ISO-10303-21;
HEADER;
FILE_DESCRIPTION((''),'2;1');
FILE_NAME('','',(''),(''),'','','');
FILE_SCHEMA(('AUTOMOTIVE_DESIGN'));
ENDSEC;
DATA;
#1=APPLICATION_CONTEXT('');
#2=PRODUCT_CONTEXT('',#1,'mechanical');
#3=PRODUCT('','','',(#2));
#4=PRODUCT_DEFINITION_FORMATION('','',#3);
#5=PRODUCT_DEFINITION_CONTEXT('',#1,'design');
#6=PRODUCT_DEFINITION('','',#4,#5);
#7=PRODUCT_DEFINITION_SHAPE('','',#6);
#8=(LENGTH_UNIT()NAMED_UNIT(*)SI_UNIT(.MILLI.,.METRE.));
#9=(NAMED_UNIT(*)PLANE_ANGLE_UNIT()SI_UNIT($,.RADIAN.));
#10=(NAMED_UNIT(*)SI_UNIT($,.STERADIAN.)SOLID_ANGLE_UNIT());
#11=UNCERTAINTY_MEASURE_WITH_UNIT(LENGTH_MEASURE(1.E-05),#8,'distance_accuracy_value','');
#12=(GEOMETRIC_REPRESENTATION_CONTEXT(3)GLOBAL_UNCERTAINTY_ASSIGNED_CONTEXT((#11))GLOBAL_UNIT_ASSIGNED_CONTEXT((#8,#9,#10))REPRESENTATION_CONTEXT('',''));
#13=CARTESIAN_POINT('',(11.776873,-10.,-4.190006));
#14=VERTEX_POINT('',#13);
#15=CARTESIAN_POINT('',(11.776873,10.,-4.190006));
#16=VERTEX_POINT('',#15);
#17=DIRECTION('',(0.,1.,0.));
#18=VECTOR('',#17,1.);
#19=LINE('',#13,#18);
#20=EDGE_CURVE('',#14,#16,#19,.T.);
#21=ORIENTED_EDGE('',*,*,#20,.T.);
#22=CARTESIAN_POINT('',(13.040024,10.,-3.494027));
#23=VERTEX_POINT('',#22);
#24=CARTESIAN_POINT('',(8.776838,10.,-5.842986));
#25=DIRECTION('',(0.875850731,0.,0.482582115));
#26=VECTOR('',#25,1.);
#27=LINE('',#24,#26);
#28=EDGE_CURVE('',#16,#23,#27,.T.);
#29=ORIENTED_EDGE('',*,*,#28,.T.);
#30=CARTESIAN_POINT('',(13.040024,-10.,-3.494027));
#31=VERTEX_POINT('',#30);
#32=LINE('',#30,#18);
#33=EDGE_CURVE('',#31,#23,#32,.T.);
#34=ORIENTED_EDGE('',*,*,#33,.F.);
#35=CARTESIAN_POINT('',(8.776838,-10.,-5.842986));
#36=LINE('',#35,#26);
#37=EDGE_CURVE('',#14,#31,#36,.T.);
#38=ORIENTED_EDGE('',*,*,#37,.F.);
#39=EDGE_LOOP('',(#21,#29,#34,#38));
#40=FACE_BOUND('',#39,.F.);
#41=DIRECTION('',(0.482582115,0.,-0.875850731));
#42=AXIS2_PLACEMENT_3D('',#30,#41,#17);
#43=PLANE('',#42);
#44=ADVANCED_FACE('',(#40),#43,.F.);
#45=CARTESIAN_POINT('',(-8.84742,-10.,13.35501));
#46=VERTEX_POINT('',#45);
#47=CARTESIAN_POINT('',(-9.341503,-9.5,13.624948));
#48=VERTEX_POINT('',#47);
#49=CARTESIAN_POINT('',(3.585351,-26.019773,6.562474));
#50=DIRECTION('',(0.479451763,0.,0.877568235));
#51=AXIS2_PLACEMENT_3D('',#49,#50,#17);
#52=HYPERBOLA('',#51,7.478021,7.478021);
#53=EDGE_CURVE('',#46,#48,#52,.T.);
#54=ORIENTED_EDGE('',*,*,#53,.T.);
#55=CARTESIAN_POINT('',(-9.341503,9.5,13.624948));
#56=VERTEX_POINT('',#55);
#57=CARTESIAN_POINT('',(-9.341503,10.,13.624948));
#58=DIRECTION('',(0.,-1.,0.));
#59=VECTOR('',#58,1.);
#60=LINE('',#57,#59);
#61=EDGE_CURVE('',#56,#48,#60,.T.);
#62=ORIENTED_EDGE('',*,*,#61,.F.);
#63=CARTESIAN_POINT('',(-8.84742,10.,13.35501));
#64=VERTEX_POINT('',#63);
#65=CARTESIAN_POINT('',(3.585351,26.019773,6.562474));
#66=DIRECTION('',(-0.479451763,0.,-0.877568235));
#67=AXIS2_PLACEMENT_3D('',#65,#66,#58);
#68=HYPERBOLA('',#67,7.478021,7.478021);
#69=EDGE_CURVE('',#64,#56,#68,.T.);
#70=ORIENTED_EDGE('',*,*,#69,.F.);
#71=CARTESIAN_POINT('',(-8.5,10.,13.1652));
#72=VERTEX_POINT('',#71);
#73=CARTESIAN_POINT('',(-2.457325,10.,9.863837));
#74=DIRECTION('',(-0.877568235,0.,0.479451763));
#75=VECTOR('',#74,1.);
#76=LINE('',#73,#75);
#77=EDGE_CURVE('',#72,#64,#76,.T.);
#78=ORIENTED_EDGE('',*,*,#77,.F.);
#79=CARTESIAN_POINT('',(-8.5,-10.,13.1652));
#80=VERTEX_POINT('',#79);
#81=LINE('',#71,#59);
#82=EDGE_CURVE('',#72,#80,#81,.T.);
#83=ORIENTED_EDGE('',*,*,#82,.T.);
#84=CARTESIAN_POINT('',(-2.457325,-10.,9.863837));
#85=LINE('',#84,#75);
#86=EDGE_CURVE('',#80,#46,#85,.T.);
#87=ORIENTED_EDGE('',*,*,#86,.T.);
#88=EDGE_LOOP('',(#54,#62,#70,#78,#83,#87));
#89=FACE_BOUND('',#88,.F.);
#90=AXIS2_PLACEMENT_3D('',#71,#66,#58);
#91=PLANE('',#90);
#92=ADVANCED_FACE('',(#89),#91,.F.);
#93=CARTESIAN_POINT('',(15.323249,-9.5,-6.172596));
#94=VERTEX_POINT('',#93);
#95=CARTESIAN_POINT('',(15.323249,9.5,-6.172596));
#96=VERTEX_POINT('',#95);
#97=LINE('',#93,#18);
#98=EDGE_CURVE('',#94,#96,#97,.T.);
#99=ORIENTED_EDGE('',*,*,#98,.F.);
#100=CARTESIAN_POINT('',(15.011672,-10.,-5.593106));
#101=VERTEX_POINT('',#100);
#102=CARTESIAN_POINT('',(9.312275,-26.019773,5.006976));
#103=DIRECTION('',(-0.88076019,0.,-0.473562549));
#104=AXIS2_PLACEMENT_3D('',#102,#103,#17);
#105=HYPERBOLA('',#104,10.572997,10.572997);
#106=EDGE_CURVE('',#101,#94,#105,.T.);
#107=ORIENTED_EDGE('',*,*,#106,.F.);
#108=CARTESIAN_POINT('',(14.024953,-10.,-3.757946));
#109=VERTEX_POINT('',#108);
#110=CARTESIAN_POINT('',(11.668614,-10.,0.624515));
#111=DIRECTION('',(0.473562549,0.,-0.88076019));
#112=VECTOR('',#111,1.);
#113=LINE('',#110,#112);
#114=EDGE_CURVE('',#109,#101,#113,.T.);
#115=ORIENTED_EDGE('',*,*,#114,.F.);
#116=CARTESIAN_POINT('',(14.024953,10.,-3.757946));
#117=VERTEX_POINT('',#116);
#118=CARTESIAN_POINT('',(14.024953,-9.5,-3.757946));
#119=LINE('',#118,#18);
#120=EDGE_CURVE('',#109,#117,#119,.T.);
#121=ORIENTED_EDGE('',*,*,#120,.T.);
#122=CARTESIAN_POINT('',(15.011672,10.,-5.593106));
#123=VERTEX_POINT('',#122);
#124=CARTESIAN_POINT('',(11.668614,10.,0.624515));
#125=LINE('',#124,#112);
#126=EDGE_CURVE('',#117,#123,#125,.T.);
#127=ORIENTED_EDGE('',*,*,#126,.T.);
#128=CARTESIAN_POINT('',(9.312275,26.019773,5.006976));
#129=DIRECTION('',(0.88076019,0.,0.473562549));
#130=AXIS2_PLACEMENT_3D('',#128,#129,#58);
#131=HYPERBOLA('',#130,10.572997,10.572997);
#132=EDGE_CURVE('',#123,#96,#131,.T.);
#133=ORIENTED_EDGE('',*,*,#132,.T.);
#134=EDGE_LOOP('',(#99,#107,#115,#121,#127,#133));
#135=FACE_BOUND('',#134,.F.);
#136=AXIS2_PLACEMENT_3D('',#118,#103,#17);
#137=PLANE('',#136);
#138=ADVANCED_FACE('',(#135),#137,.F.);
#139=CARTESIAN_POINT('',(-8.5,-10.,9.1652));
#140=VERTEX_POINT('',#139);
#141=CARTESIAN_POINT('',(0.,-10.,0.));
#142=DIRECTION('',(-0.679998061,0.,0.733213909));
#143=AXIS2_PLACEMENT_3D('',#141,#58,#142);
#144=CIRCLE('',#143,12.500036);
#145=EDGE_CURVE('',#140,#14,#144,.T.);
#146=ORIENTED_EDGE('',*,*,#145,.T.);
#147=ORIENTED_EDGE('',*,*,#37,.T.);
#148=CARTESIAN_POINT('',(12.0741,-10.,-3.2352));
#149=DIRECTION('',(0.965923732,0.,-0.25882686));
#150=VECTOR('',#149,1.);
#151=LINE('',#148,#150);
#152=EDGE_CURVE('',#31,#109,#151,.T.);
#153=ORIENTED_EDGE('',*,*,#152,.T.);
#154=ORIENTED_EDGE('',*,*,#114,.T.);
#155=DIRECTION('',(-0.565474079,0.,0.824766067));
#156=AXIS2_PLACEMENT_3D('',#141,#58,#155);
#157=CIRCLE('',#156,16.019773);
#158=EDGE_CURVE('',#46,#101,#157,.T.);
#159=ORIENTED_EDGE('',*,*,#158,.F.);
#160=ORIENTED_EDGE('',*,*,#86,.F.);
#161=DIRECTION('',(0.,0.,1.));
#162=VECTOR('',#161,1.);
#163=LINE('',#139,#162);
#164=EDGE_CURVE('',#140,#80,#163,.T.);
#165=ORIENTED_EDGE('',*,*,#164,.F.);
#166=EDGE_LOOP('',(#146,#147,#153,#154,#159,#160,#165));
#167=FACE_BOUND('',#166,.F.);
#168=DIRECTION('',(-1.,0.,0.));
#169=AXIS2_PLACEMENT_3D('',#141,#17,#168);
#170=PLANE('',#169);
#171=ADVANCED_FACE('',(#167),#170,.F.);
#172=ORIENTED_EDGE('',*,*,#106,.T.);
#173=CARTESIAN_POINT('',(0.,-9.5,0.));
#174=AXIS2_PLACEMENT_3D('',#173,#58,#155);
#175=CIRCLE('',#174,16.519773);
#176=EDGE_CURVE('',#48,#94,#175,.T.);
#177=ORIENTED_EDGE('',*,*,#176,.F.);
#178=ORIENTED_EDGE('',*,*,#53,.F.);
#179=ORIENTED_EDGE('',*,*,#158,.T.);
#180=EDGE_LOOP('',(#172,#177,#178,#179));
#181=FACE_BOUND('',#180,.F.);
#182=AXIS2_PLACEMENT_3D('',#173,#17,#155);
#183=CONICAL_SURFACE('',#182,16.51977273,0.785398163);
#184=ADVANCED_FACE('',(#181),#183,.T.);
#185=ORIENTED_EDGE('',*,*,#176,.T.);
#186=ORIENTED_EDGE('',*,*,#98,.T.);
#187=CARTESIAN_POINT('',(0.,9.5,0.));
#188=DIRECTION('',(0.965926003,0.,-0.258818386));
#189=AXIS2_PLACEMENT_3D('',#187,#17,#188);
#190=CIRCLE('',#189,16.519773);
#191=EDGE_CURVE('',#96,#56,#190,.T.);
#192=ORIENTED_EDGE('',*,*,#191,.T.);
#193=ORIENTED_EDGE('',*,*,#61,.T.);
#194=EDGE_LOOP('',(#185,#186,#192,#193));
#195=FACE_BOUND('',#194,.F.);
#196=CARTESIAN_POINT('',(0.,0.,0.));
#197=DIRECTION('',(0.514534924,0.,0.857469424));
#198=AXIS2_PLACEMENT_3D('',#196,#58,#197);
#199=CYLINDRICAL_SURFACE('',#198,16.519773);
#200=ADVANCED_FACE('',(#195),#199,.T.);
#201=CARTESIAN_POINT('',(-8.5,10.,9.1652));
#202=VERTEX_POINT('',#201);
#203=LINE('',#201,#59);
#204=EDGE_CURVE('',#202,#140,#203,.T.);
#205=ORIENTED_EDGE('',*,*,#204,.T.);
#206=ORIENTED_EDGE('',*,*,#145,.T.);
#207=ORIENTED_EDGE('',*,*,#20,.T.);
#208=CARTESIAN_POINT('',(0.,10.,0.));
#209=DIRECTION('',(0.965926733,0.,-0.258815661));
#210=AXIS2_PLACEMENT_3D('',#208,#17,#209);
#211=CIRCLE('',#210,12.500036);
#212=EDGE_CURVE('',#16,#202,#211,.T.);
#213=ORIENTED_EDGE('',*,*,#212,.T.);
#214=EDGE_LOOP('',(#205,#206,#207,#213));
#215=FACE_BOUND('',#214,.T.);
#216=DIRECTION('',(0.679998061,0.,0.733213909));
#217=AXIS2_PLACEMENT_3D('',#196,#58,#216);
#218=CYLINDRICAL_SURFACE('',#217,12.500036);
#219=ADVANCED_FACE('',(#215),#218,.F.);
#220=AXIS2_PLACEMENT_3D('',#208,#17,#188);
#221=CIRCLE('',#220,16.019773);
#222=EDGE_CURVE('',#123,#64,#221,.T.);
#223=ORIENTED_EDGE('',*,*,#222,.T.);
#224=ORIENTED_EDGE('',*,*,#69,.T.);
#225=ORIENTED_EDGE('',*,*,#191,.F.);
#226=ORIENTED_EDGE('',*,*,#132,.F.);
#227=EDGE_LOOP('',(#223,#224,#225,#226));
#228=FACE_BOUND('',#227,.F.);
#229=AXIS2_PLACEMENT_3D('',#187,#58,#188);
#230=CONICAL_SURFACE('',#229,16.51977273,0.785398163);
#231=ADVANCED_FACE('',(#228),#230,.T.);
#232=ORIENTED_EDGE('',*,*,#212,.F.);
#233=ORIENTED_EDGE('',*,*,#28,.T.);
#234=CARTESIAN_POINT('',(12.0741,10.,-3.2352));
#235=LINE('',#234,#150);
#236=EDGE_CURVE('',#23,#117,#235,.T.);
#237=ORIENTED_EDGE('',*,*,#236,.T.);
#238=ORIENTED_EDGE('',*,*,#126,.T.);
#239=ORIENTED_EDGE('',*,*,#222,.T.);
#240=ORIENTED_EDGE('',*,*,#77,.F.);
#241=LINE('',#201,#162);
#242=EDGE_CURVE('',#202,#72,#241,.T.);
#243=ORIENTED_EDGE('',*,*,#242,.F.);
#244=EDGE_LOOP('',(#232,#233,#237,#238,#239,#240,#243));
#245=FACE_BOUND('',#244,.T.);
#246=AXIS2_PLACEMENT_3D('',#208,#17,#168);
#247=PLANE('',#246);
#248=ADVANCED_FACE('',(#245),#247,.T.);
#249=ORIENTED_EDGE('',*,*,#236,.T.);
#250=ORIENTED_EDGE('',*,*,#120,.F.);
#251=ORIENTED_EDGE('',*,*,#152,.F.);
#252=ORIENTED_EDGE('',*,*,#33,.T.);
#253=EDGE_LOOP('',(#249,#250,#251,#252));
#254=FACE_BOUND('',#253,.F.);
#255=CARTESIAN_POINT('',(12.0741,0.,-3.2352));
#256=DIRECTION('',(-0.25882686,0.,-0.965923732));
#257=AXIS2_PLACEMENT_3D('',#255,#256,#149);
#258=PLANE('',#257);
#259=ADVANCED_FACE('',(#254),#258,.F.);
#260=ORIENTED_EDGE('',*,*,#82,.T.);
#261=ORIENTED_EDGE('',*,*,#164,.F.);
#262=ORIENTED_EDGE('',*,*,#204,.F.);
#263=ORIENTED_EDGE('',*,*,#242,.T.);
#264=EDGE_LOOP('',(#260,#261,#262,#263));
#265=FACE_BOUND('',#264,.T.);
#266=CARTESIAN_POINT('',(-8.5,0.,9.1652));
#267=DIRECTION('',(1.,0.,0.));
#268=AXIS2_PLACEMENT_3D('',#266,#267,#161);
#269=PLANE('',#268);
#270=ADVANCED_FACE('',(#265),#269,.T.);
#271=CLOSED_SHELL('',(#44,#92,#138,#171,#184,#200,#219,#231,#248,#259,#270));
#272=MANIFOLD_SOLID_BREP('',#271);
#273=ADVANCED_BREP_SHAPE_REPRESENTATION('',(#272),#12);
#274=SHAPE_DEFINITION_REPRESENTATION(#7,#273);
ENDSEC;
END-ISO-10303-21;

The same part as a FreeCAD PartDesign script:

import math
import FreeCAD as App
import Part
import Sketcher

V = App.Vector
Q = App.Units.Quantity


def edges_at(feature, points):
    """Names of the edges that pass closest to the given points."""
    edges = feature.Shape.Edges
    near = lambda p: min(range(len(edges)), key=lambda i: edges[i].distToShape(Part.Vertex(*p))[0])
    return sorted({f"Edge{near(p) + 1}" for p in points})

doc = App.newDocument("Part")
body = doc.addObject("PartDesign::Body", "Body")

sketch1 = body.newObject("Sketcher::SketchObject", "Sketch")
sketch1.AttachmentSupport = (doc.getObject("XZ_Plane"), [""])
sketch1.MapMode = "FlatFace"
sketch1.addGeometry([
    Part.LineSegment(V(12.1, -3.2, 0), V(16, -4.3, 0)),
    Part.ArcOfCircle(Part.Circle(V(0, 0, 0), V(0, 0, 1), 16.5), math.radians(121), math.radians(345)),
    Part.LineSegment(V(-8.5, 14.2, 0), V(-8.5, 9.2, 0)),
    Part.ArcOfCircle(Part.Circle(V(0, 0, 0), V(0, 0, 1), 12.5), math.radians(133), math.radians(345)),
], False)
sketch1.addConstraint([
    Sketcher.Constraint("Coincident", 0, 2, 1, 2),
    Sketcher.Constraint("Coincident", 1, 1, 2, 1),
    Sketcher.Constraint("Coincident", 2, 2, 3, 1),
    Sketcher.Constraint("Coincident", 3, 2, 0, 1),
    Sketcher.Constraint("Vertical", 2),
    Sketcher.Constraint("Coincident", 1, 3, -1, 1),
    Sketcher.Constraint("Coincident", 3, 3, -1, 1),
    Sketcher.Constraint("Radius", 3, Q("12.5 mm")),
    Sketcher.Constraint("DistanceY", 2, 2, 2, 1, Q("5 mm")),
    Sketcher.Constraint("Angle", 0, Q("-15.0005 deg")),
    Sketcher.Constraint("DistanceX", 1, 1, -1, 1, Q("8.5 mm")),
    Sketcher.Constraint("DistanceX", -1, 1, 3, 2, Q("12.074 mm")),
])
pad1 = body.newObject("PartDesign::Pad", "Pad")
pad1.Profile = sketch1
pad1.Length = 20
pad1.Midplane = True
doc.recompute()

chamfer = body.newObject("PartDesign::Chamfer", "Chamfer")
chamfer.Base = (pad1, edges_at(pad1, [(-8.5, 0, 14.165), (12.074, 0, -3.235)]))
chamfer.Size = 1
doc.recompute()

chamfer2 = body.newObject("PartDesign::Chamfer", "Chamfer001")
chamfer2.Base = (chamfer, edges_at(chamfer, [(-9.542, 10, -13.485), (-9.542, -10, -13.485)]))
chamfer2.Size = 0.5
doc.recompute()

chamfer3 = body.newObject("PartDesign::Chamfer", "Chamfer002")
chamfer3.Base = (chamfer2, edges_at(chamfer2, [(15.957, 0, -4.276)]))
chamfer3.Size = 2

doc.recompute()
